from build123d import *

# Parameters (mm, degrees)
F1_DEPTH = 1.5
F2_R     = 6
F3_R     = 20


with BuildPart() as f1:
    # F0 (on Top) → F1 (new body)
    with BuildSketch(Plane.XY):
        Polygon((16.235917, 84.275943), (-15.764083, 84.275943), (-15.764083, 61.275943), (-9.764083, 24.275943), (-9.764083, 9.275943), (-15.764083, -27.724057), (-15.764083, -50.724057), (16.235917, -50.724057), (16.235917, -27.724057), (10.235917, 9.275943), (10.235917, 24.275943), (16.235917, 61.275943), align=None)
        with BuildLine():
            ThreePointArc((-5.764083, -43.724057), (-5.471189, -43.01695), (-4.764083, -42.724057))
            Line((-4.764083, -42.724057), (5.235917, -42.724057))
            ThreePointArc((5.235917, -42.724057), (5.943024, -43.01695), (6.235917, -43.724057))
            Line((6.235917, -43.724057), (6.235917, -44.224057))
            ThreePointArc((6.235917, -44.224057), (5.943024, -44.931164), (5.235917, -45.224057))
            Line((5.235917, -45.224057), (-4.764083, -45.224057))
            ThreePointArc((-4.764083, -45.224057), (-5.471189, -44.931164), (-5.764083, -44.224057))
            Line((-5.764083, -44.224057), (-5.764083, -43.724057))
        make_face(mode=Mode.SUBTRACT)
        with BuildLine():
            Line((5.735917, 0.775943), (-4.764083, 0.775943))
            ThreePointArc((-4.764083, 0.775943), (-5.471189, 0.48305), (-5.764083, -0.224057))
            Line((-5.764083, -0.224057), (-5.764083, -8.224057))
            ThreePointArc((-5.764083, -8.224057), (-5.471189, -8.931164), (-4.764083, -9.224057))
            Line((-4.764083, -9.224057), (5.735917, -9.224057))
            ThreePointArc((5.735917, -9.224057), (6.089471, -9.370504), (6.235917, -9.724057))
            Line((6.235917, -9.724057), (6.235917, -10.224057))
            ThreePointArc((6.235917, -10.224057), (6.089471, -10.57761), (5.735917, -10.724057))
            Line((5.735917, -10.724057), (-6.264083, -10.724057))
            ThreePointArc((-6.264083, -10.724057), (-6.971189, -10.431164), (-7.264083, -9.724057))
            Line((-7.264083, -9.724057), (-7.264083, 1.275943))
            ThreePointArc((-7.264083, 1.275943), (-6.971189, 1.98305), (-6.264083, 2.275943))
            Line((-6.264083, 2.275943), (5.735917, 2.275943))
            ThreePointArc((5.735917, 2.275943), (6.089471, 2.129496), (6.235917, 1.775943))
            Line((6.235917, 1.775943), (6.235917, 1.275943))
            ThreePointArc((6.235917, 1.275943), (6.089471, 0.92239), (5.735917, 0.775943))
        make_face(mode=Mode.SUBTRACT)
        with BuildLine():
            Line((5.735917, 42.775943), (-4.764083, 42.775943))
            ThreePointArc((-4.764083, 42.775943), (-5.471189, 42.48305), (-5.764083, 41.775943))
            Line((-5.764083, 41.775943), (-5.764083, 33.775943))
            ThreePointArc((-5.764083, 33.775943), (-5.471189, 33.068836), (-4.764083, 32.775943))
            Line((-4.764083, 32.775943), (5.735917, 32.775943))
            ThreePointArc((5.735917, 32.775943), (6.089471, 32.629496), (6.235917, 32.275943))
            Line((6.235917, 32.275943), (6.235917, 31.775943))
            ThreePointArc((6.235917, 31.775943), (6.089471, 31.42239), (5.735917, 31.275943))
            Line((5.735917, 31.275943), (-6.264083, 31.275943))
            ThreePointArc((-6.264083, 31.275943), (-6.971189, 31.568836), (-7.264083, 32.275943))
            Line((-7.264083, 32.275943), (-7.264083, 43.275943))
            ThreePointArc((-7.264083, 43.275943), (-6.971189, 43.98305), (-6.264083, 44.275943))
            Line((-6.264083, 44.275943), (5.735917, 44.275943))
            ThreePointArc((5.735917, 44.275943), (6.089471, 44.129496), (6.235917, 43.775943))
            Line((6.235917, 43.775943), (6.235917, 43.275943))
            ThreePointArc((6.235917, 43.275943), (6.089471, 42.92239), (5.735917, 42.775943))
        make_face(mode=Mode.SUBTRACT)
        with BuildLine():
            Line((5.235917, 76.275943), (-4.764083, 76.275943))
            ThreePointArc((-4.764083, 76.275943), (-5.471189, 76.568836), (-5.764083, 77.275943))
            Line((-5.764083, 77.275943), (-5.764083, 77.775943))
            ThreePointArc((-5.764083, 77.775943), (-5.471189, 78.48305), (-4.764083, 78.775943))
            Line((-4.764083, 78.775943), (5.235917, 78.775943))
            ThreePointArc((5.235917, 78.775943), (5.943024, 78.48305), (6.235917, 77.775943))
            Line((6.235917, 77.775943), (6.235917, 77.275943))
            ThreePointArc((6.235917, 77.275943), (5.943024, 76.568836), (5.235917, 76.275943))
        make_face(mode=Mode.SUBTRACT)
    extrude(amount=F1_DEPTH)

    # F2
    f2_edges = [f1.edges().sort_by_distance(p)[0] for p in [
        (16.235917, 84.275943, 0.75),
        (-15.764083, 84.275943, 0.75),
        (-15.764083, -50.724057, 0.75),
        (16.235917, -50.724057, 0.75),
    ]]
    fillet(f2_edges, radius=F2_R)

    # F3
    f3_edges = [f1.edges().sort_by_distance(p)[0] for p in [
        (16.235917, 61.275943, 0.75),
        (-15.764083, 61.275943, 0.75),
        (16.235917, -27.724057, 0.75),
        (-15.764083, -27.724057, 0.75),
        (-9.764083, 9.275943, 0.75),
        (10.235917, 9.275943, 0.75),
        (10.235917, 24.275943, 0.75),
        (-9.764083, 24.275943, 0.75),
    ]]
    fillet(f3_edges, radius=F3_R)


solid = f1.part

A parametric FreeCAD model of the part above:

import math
import FreeCAD as App
import Part
import Sketcher
from FreeCAD import Vector
Q = App.Units.Quantity


def edges_at(feature, points):
    """Names of the edges that pass closest to the given points."""
    edges = feature.Shape.Edges
    near = lambda p: min(range(len(edges)), key=lambda i: edges[i].distToShape(Part.Vertex(*p))[0])
    return sorted({f"Edge{near(p) + 1}" for p in points})


def add_polygon(sketch, points):
    """Adds a closed chain of lines whose ends are joined by coincident constraints."""
    first, n = sketch.GeometryCount, len(points)
    for a, b in zip(points, points[1:] + points[:1]):
        sketch.addGeometry(Part.LineSegment(App.Vector(*a, 0), App.Vector(*b, 0)), False)
    for i in range(n):
        sketch.addConstraint(Sketcher.Constraint("Coincident", first + i, 2, first + (i + 1) % n, 1))

doc = App.newDocument("Part")
body = doc.addObject("PartDesign::Body", "Body")

# Sketch on XY plane
sketch1 = body.newObject("Sketcher::SketchObject", "Sketch")
sketch1.AttachmentSupport = (doc.getObject("XY_Plane"), [""])
sketch1.MapMode = "FlatFace"
add_polygon(sketch1, [(16.24, 84.28), (-15.76, 84.28), (-15.76, 61.28), (-9.76, 24.28), (-9.76, 9.28), (-15.76, -27.72), (-15.76, -50.72), (16.24, -50.72), (16.24, -27.72), (10.24, 9.28), (10.24, 24.28), (16.24, 61.28)])  # lines 0-11
sketch1.addGeometry(Part.ArcOfCircle(Part.Circle(Vector(5.74, 1.28, 0), Vector(0, 0, 1), 0.5), math.radians(-90), math.radians(0)), False)  # 12
sketch1.addGeometry(Part.LineSegment(Vector(5.74, 0.78, 0), Vector(-4.76, 0.78, 0)), False)  # 13
sketch1.addGeometry(Part.ArcOfCircle(Part.Circle(Vector(-4.76, -0.22, 0), Vector(0, 0, 1), 1), math.radians(90), math.radians(180)), False)  # 14
sketch1.addGeometry(Part.LineSegment(Vector(-5.76, -0.22, 0), Vector(-5.76, -8.22, 0)), False)  # 15
sketch1.addGeometry(Part.ArcOfCircle(Part.Circle(Vector(-4.76, -8.22, 0), Vector(0, 0, 1), 1), math.radians(-180), math.radians(-90)), False)  # 16
sketch1.addGeometry(Part.LineSegment(Vector(-4.76, -9.22, 0), Vector(5.74, -9.22, 0)), False)  # 17
sketch1.addGeometry(Part.ArcOfCircle(Part.Circle(Vector(5.74, -9.72, 0), Vector(0, 0, 1), 0.5), math.radians(0), math.radians(90)), False)  # 18
sketch1.addGeometry(Part.LineSegment(Vector(6.24, -9.72, 0), Vector(6.24, -10.22, 0)), False)  # 19
sketch1.addGeometry(Part.ArcOfCircle(Part.Circle(Vector(5.74, -10.22, 0), Vector(0, 0, 1), 0.5), math.radians(-90), math.radians(0)), False)  # 20
sketch1.addGeometry(Part.LineSegment(Vector(5.74, -10.72, 0), Vector(-6.26, -10.72, 0)), False)  # 21
sketch1.addGeometry(Part.ArcOfCircle(Part.Circle(Vector(-6.26, -9.72, 0), Vector(0, 0, 1), 1), math.radians(-180), math.radians(-90)), False)  # 22
sketch1.addGeometry(Part.LineSegment(Vector(-7.26, -9.72, 0), Vector(-7.26, 1.28, 0)), False)  # 23
sketch1.addGeometry(Part.ArcOfCircle(Part.Circle(Vector(-6.26, 1.28, 0), Vector(0, 0, 1), 1), math.radians(90), math.radians(180)), False)  # 24
sketch1.addGeometry(Part.LineSegment(Vector(-6.26, 2.28, 0), Vector(5.74, 2.28, 0)), False)  # 25
sketch1.addGeometry(Part.ArcOfCircle(Part.Circle(Vector(5.74, 1.78, 0), Vector(0, 0, 1), 0.5), math.radians(0), math.radians(90)), False)  # 26
sketch1.addGeometry(Part.LineSegment(Vector(6.24, 1.78, 0), Vector(6.24, 1.28, 0)), False)  # 27
sketch1.addGeometry(Part.LineSegment(Vector(-5.76, -44.22, 0), Vector(-5.76, -43.72, 0)), False)  # 28
sketch1.addGeometry(Part.ArcOfCircle(Part.Circle(Vector(-4.76, -43.72, 0), Vector(0, 0, 1), 1), math.radians(90), math.radians(180)), False)  # 29
sketch1.addGeometry(Part.LineSegment(Vector(-4.76, -42.72, 0), Vector(5.24, -42.72, 0)), False)  # 30
sketch1.addGeometry(Part.ArcOfCircle(Part.Circle(Vector(5.24, -43.72, 0), Vector(0, 0, 1), 1), math.radians(0), math.radians(90)), False)  # 31
sketch1.addGeometry(Part.LineSegment(Vector(6.24, -43.72, 0), Vector(6.24, -44.22, 0)), False)  # 32
sketch1.addGeometry(Part.ArcOfCircle(Part.Circle(Vector(5.24, -44.22, 0), Vector(0, 0, 1), 1), math.radians(-90), math.radians(0)), False)  # 33
sketch1.addGeometry(Part.LineSegment(Vector(5.24, -45.22, 0), Vector(-4.76, -45.22, 0)), False)  # 34
sketch1.addGeometry(Part.ArcOfCircle(Part.Circle(Vector(-4.76, -44.22, 0), Vector(0, 0, 1), 1), math.radians(-180), math.radians(-90)), False)  # 35
sketch1.addGeometry(Part.ArcOfCircle(Part.Circle(Vector(5.74, 43.28, 0), Vector(0, 0, 1), 0.5), math.radians(-90), math.radians(0)), False)  # 36
sketch1.addGeometry(Part.LineSegment(Vector(5.74, 42.78, 0), Vector(-4.76, 42.78, 0)), False)  # 37
sketch1.addGeometry(Part.ArcOfCircle(Part.Circle(Vector(-4.76, 41.78, 0), Vector(0, 0, 1), 1), math.radians(90), math.radians(180)), False)  # 38
sketch1.addGeometry(Part.LineSegment(Vector(-5.76, 41.78, 0), Vector(-5.76, 33.78, 0)), False)  # 39
sketch1.addGeometry(Part.ArcOfCircle(Part.Circle(Vector(-4.76, 33.78, 0), Vector(0, 0, 1), 1), math.radians(-180), math.radians(-90)), False)  # 40
sketch1.addGeometry(Part.LineSegment(Vector(-4.76, 32.78, 0), Vector(5.74, 32.78, 0)), False)  # 41
sketch1.addGeometry(Part.ArcOfCircle(Part.Circle(Vector(5.74, 32.28, 0), Vector(0, 0, 1), 0.5), math.radians(0), math.radians(90)), False)  # 42
sketch1.addGeometry(Part.LineSegment(Vector(6.24, 32.28, 0), Vector(6.24, 31.78, 0)), False)  # 43
sketch1.addGeometry(Part.ArcOfCircle(Part.Circle(Vector(5.74, 31.78, 0), Vector(0, 0, 1), 0.5), math.radians(-90), math.radians(0)), False)  # 44
sketch1.addGeometry(Part.LineSegment(Vector(5.74, 31.28, 0), Vector(-6.26, 31.28, 0)), False)  # 45
sketch1.addGeometry(Part.ArcOfCircle(Part.Circle(Vector(-6.26, 32.28, 0), Vector(0, 0, 1), 1), math.radians(-180), math.radians(-90)), False)  # 46
sketch1.addGeometry(Part.LineSegment(Vector(-7.26, 32.28, 0), Vector(-7.26, 43.28, 0)), False)  # 47
sketch1.addGeometry(Part.ArcOfCircle(Part.Circle(Vector(-6.26, 43.28, 0), Vector(0, 0, 1), 1), math.radians(90), math.radians(180)), False)  # 48
sketch1.addGeometry(Part.LineSegment(Vector(-6.26, 44.28, 0), Vector(5.74, 44.28, 0)), False)  # 49
sketch1.addGeometry(Part.ArcOfCircle(Part.Circle(Vector(5.74, 43.78, 0), Vector(0, 0, 1), 0.5), math.radians(0), math.radians(90)), False)  # 50
sketch1.addGeometry(Part.LineSegment(Vector(6.24, 43.78, 0), Vector(6.24, 43.28, 0)), False)  # 51
sketch1.addGeometry(Part.ArcOfCircle(Part.Circle(Vector(5.24, 77.28, 0), Vector(0, 0, 1), 1), math.radians(-90), math.radians(0)), False)  # 52
sketch1.addGeometry(Part.LineSegment(Vector(5.24, 76.28, 0), Vector(-4.76, 76.28, 0)), False)  # 53
sketch1.addGeometry(Part.ArcOfCircle(Part.Circle(Vector(-4.76, 77.28, 0), Vector(0, 0, 1), 1), math.radians(-180), math.radians(-90)), False)  # 54
sketch1.addGeometry(Part.LineSegment(Vector(-5.76, 77.28, 0), Vector(-5.76, 77.78, 0)), False)  # 55
sketch1.addGeometry(Part.ArcOfCircle(Part.Circle(Vector(-4.76, 77.78, 0), Vector(0, 0, 1), 1), math.radians(90), math.radians(180)), False)  # 56
sketch1.addGeometry(Part.LineSegment(Vector(-4.76, 78.78, 0), Vector(5.24, 78.78, 0)), False)  # 57
sketch1.addGeometry(Part.ArcOfCircle(Part.Circle(Vector(5.24, 77.78, 0), Vector(0, 0, 1), 1), math.radians(0), math.radians(90)), False)  # 58
sketch1.addGeometry(Part.LineSegment(Vector(6.24, 77.78, 0), Vector(6.24, 77.28, 0)), False)  # 59
sketch1.addConstraint([
    Sketcher.Constraint("Tangent", 12, 1, 13, 1),
    Sketcher.Constraint("Tangent", 13, 2, 14, 1),
    Sketcher.Constraint("Tangent", 14, 2, 15, 1),
    Sketcher.Constraint("Tangent", 15, 2, 16, 1),
    Sketcher.Constraint("Tangent", 16, 2, 17, 1),
    Sketcher.Constraint("Tangent", 17, 2, 18, 2),
    Sketcher.Constraint("Tangent", 18, 1, 19, 1),
    Sketcher.Constraint("Tangent", 19, 2, 20, 2),
    Sketcher.Constraint("Tangent", 20, 1, 21, 1),
    Sketcher.Constraint("Tangent", 21, 2, 22, 2),
    Sketcher.Constraint("Tangent", 22, 1, 23, 1),
    Sketcher.Constraint("Tangent", 23, 2, 24, 2),
    Sketcher.Constraint("Tangent", 24, 1, 25, 1),
    Sketcher.Constraint("Tangent", 25, 2, 26, 2),
    Sketcher.Constraint("Tangent", 26, 1, 27, 1),
    Sketcher.Constraint("Tangent", 27, 2, 12, 2),
    Sketcher.Constraint("Tangent", 28, 2, 29, 2),
    Sketcher.Constraint("Tangent", 29, 1, 30, 1),
    Sketcher.Constraint("Tangent", 30, 2, 31, 2),
    Sketcher.Constraint("Tangent", 31, 1, 32, 1),
    Sketcher.Constraint("Tangent", 32, 2, 33, 2),
    Sketcher.Constraint("Tangent", 33, 1, 34, 1),
    Sketcher.Constraint("Tangent", 34, 2, 35, 2),
    Sketcher.Constraint("Tangent", 35, 1, 28, 1),
    Sketcher.Constraint("Tangent", 36, 1, 37, 1),
    Sketcher.Constraint("Tangent", 37, 2, 38, 1),
    Sketcher.Constraint("Tangent", 38, 2, 39, 1),
    Sketcher.Constraint("Tangent", 39, 2, 40, 1),
    Sketcher.Constraint("Tangent", 40, 2, 41, 1),
    Sketcher.Constraint("Tangent", 41, 2, 42, 2),
    Sketcher.Constraint("Tangent", 42, 1, 43, 1),
    Sketcher.Constraint("Tangent", 43, 2, 44, 2),
    Sketcher.Constraint("Tangent", 44, 1, 45, 1),
    Sketcher.Constraint("Tangent", 45, 2, 46, 2),
    Sketcher.Constraint("Tangent", 46, 1, 47, 1),
    Sketcher.Constraint("Tangent", 47, 2, 48, 2),
    Sketcher.Constraint("Tangent", 48, 1, 49, 1),
    Sketcher.Constraint("Tangent", 49, 2, 50, 2),
    Sketcher.Constraint("Tangent", 50, 1, 51, 1),
    Sketcher.Constraint("Tangent", 51, 2, 36, 2),
    Sketcher.Constraint("Tangent", 52, 1, 53, 1),
    Sketcher.Constraint("Tangent", 53, 2, 54, 2),
    Sketcher.Constraint("Tangent", 54, 1, 55, 1),
    Sketcher.Constraint("Tangent", 55, 2, 56, 2),
    Sketcher.Constraint("Tangent", 56, 1, 57, 1),
    Sketcher.Constraint("Tangent", 57, 2, 58, 2),
    Sketcher.Constraint("Tangent", 58, 1, 59, 1),
    Sketcher.Constraint("Tangent", 59, 2, 52, 2),
    Sketcher.Constraint("Horizontal", 0),
    Sketcher.Constraint("Vertical", 1),
    Sketcher.Constraint("Vertical", 3),
    Sketcher.Constraint("Vertical", 5),
    Sketcher.Constraint("Horizontal", 6),
    Sketcher.Constraint("Vertical", 7),
    Sketcher.Constraint("Vertical", 9),
    Sketcher.Constraint("Vertical", 11),
    Sketcher.Constraint("Horizontal", 13),
    Sketcher.Constraint("Vertical", 15),
    Sketcher.Constraint("Horizontal", 17),
    Sketcher.Constraint("Vertical", 19),
    Sketcher.Constraint("Horizontal", 21),
    Sketcher.Constraint("Vertical", 23),
    Sketcher.Constraint("Horizontal", 25),
    Sketcher.Constraint("Vertical", 27),
    Sketcher.Constraint("Vertical", 28),
    Sketcher.Constraint("Horizontal", 30),
    Sketcher.Constraint("Vertical", 32),
    Sketcher.Constraint("Horizontal", 34),
    Sketcher.Constraint("Horizontal", 37),
    Sketcher.Constraint("Vertical", 39),
    Sketcher.Constraint("Horizontal", 41),
    Sketcher.Constraint("Vertical", 43),
    Sketcher.Constraint("Horizontal", 45),
    Sketcher.Constraint("Vertical", 47),
    Sketcher.Constraint("Horizontal", 49),
    Sketcher.Constraint("Vertical", 51),
    Sketcher.Constraint("Horizontal", 53),
    Sketcher.Constraint("Vertical", 55),
    Sketcher.Constraint("Horizontal", 57),
    Sketcher.Constraint("Vertical", 59),
    Sketcher.Constraint("Equal", 14, 16),
    Sketcher.Constraint("Equal", 12, 18),
    Sketcher.Constraint("Equal", 18, 20),
    Sketcher.Constraint("Equal", 16, 22),
    Sketcher.Constraint("Equal", 22, 24),
    Sketcher.Constraint("Equal", 20, 26),
    Sketcher.Constraint("Equal", 24, 29),
    Sketcher.Constraint("Equal", 29, 31),
    Sketcher.Constraint("Equal", 31, 33),
    Sketcher.Constraint("Equal", 33, 35),
    Sketcher.Constraint("Equal", 26, 36),
    Sketcher.Constraint("Equal", 35, 38),
    Sketcher.Constraint("Equal", 38, 40),
    Sketcher.Constraint("Equal", 36, 42),
    Sketcher.Constraint("Equal", 42, 44),
    Sketcher.Constraint("Equal", 40, 46),
    Sketcher.Constraint("Equal", 46, 48),
    Sketcher.Constraint("Equal", 44, 50),
    Sketcher.Constraint("Equal", 48, 52),
    Sketcher.Constraint("Equal", 52, 54),
    Sketcher.Constraint("Equal", 54, 56),
    Sketcher.Constraint("Equal", 56, 58),
    Sketcher.Constraint("Parallel", 2, 8),
    Sketcher.Constraint("Parallel", 4, 10),
    Sketcher.Constraint("Horizontal", 18, 3, 22, 3),
    Sketcher.Constraint("Horizontal", 12, 3, 24, 3),
    Sketcher.Constraint("Horizontal", 42, 3, 46, 3),
    Sketcher.Constraint("Horizontal", 36, 3, 48, 3),
    Sketcher.Constraint("Horizontal", 4, 2, 7, 2),
    Sketcher.Constraint("Horizontal", 3, 2, 8, 2),
    Sketcher.Constraint("Horizontal", 2, 2, 9, 2),
    Sketcher.Constraint("Horizontal", 1, 2, 10, 2),
    Sketcher.Constraint("Vertical", 12, 3, 18, 3),
    Sketcher.Constraint("Vertical", 16, 3, 29, 3),
    Sketcher.Constraint("Vertical", 26, 3, 36, 3),
    Sketcher.Constraint("Vertical", 35, 3, 38, 3),
    Sketcher.Constraint("Vertical", 36, 3, 42, 3),
    Sketcher.Constraint("Vertical", 24, 3, 46, 3),
    Sketcher.Constraint("Vertical", 33, 3, 52, 3),
    Sketcher.Constraint("Vertical", 40, 3, 54, 3),
    Sketcher.Constraint("Vertical", 1, 2, 4, 2),
    Sketcher.Constraint("Vertical", 7, 2, 10, 2),
    Sketcher.Constraint("Vertical", 27, 2, 31, 1),
    Sketcher.Constraint("Equal", 1, 5),
    Sketcher.Constraint("Equal", 27, 28),
    Sketcher.Constraint("Equal", 15, 39),
    Sketcher.Constraint("Equal", 51, 55),
    Sketcher.Constraint("Radius", 14, Q("1.000001 mm")),
    Sketcher.Constraint("Radius", 12, Q("0.5 mm")),
    Sketcher.Constraint("DistanceX", 0, 2, 0, 1, Q("32 mm")),
    Sketcher.Constraint("DistanceX", 21, 2, 21, 1, Q("12 mm")),
    Sketcher.Constraint("DistanceX", 30, 1, 30, 2, Q("10 mm")),
    Sketcher.Constraint("DistanceY", 1, 2, 1, 1, Q("23 mm")),
    Sketcher.Constraint("DistanceY", 3, 2, 3, 1, Q("15 mm")),
    Sketcher.Constraint("DistanceY", 15, 2, 15, 1, Q("8 mm")),
    Sketcher.Constraint("Distance", 2, Q("37.48333 mm")),
    Sketcher.Constraint("DistanceX", -1, 1, 12, 3, Q("5.735917 mm")),
    Sketcher.Constraint("DistanceY", -1, 1, 12, 3, Q("1.275943 mm")),
    Sketcher.Constraint("DistanceY", 29, 3, -1, 1, Q("43.724058 mm")),
    Sketcher.Constraint("DistanceY", -1, 1, 36, 3, Q("43.275943 mm")),
    Sketcher.Constraint("DistanceY", -1, 1, 52, 3, Q("77.275942 mm")),
    Sketcher.Constraint("DistanceX", 0, 2, -1, 1, Q("15.764083 mm")),
    Sketcher.Constraint("DistanceY", -1, 1, 0, 2, Q("84.275943 mm")),
    Sketcher.Constraint("DistanceX", 2, 2, -1, 1, Q("9.764083 mm")),
])
pad1 = body.newObject("PartDesign::Pad", "Pad")
pad1.Profile = sketch1
pad1.Length = 1.5
doc.recompute()

fillet = body.newObject("PartDesign::Fillet", "Fillet")
fillet.Base = (pad1, edges_at(pad1, [
    (16.236, 84.276, 0.75),
    (-15.764, 84.276, 0.75),
    (-15.764, -50.724, 0.75),
    (16.236, -50.724, 0.75),
]))
fillet.Radius = 6
doc.recompute()

fillet2 = body.newObject("PartDesign::Fillet", "Fillet001")
fillet2.Base = (fillet, edges_at(fillet, [
    (16.236, 61.276, 0.75),
    (-15.764, 61.276, 0.75),
    (16.236, -27.724, 0.75),
    (-15.764, -27.724, 0.75),
    (-9.764, 9.276, 0.75),
    (10.236, 9.276, 0.75),
    (10.236, 24.276, 0.75),
    (-9.764, 24.276, 0.75),
]))
fillet2.Radius = 20

doc.recompute()
